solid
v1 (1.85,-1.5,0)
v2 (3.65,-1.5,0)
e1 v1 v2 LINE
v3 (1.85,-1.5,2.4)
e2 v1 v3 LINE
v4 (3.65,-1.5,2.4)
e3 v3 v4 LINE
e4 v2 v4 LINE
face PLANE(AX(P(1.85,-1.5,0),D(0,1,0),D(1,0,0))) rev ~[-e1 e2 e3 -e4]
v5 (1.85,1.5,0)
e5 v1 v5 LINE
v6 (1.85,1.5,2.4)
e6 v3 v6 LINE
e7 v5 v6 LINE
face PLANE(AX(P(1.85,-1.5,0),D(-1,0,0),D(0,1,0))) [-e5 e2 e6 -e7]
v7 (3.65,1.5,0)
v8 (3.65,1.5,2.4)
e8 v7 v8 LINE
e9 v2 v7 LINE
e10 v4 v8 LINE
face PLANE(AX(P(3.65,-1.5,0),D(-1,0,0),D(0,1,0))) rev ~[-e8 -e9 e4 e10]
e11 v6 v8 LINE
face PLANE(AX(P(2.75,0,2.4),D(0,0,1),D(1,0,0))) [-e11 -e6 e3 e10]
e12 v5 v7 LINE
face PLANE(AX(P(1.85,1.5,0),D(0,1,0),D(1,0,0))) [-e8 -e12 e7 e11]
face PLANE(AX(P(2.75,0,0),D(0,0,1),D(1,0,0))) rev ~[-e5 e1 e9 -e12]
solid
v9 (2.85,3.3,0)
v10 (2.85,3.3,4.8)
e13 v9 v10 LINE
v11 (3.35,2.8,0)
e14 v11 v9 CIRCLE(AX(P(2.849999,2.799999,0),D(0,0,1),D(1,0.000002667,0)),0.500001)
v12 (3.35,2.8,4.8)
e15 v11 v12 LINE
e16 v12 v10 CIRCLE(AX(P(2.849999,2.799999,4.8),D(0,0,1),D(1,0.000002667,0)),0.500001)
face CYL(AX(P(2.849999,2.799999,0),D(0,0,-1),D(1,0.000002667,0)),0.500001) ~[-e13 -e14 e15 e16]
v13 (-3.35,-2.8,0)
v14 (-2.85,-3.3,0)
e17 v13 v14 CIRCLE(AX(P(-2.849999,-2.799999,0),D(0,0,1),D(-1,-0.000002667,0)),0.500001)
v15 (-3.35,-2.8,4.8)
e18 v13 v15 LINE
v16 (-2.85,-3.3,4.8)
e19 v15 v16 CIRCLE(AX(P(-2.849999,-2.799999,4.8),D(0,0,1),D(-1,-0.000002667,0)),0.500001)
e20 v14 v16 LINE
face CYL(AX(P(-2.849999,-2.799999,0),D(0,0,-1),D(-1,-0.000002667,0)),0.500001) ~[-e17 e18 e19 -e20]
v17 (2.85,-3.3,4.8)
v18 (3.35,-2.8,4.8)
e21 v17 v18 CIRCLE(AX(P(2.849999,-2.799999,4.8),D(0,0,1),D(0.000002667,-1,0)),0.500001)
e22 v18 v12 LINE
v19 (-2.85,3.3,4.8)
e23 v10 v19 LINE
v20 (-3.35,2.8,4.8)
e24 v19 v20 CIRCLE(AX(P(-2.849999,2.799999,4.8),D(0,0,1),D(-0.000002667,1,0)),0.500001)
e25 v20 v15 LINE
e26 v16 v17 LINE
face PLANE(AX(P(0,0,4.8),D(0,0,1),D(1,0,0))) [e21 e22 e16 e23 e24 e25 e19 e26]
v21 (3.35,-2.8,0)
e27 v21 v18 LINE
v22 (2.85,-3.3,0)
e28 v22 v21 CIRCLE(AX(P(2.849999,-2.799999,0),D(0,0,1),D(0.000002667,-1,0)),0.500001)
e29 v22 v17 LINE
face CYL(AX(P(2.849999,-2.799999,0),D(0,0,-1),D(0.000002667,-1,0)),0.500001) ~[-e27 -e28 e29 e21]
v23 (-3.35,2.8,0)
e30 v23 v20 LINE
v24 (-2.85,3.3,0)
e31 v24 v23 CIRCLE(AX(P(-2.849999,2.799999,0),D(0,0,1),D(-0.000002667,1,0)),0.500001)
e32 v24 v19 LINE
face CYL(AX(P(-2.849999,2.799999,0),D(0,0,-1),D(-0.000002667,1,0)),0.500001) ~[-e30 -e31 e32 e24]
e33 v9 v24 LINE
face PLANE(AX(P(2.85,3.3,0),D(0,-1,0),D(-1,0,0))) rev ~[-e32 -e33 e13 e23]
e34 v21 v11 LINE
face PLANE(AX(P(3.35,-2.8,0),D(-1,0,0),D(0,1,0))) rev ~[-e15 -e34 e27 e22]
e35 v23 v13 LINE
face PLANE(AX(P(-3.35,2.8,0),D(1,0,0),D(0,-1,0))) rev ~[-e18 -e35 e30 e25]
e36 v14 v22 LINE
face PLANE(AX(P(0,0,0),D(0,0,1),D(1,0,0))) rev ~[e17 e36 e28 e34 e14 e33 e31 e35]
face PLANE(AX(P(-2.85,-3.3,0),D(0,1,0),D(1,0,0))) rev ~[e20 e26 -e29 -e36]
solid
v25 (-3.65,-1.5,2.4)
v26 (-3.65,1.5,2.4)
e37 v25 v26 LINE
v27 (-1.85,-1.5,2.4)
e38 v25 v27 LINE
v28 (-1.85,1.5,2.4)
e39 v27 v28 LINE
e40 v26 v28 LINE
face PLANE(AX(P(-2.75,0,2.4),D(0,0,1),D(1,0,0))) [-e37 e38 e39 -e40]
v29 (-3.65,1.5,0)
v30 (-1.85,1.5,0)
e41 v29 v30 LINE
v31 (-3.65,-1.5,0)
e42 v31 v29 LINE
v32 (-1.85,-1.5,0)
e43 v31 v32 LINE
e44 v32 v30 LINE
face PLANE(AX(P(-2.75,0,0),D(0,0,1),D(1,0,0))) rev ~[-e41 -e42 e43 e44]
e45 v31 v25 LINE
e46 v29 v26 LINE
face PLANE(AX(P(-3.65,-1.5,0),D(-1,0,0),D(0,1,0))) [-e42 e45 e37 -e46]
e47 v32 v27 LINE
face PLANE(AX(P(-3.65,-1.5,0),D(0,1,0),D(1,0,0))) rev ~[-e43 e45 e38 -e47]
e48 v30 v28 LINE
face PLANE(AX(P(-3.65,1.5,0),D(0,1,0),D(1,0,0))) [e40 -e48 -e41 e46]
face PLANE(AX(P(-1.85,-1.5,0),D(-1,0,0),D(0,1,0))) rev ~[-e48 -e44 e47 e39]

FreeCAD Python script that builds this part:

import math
import FreeCAD as App
import Part
import Sketcher

V = App.Vector


def add_polygon(sketch, points):
    """Adds a closed chain of lines whose ends are joined by coincident constraints."""
    first, n = sketch.GeometryCount, len(points)
    for a, b in zip(points, points[1:] + points[:1]):
        sketch.addGeometry(Part.LineSegment(App.Vector(*a, 0), App.Vector(*b, 0)), False)
    for i in range(n):
        sketch.addConstraint(Sketcher.Constraint("Coincident", first + i, 2, first + (i + 1) % n, 1))

doc = App.newDocument("Part")
params = doc.addObject("Spreadsheet::Sheet", "Params")
for row, (alias, value) in enumerate([
    ("sketch1_height", "3 mm"),
    ("sketch1_width", "1.8 mm"),
    ("pad1_length", "2.4 mm"),
    ("sketch2_radius", "0.500001 mm"),
    ("sketch2_width", "5.7 mm"),
    ("sketch2_height", "5.6 mm"),
    ("pad2_length", "4.8 mm"),
], start=1):
    params.set(f"A{row}", alias)
    params.set(f"B{row}", "=" + value)
    params.setAlias(f"B{row}", alias)

body = doc.addObject("PartDesign::Body", "Body")
body.AllowCompound = True

sketch1 = body.newObject("Sketcher::SketchObject", "Sketch")
sketch1.AttachmentSupport = (doc.getObject("XY_Plane"), [""])
sketch1.MapMode = "FlatFace"
add_polygon(sketch1, [(-3.65, 1.5), (-3.65, -1.5), (-1.85, -1.5), (-1.85, 1.5)])
add_polygon(sketch1, [(1.85, 1.5), (1.85, -1.5), (3.65, -1.5), (3.65, 1.5)])
sketch1.addConstraint(Sketcher.Constraint("Vertical", 0))
sketch1.addConstraint(Sketcher.Constraint("Horizontal", 1))
sketch1.addConstraint(Sketcher.Constraint("Vertical", 2))
sketch1.addConstraint(Sketcher.Constraint("Horizontal", 3))
sketch1.addConstraint(Sketcher.Constraint("Vertical", 4))
sketch1.addConstraint(Sketcher.Constraint("Horizontal", 5))
sketch1.addConstraint(Sketcher.Constraint("Vertical", 6))
sketch1.addConstraint(Sketcher.Constraint("Horizontal", 7))
sketch1.addConstraint(Sketcher.Constraint("Symmetric", 2, 2, 4, 2, -1, 1))
sketch1.addConstraint(Sketcher.Constraint("Symmetric", 0, 2, 6, 2, -1, 1))
sketch1.addConstraint(Sketcher.Constraint("Horizontal", 1, 2, 4, 2))
sketch1.addConstraint(Sketcher.Constraint("DistanceY", 0, 2, 0, 1, 3.0))
sketch1.addConstraint(Sketcher.Constraint("DistanceX", 1, 1, 1, 2, 1.8))
sketch1.addConstraint(Sketcher.Constraint("DistanceX", 1, 2, 4, 2, 3.7))
sketch1.setExpression("Constraints[19]", "Params.sketch1_height")
sketch1.setExpression("Constraints[20]", "Params.sketch1_width")
pad1 = body.newObject("PartDesign::Pad", "Pad")
pad1.Profile = sketch1
pad1.setExpression("Length", "Params.pad1_length")
body2 = doc.addObject("PartDesign::Body", "Body001")

sketch2 = body2.newObject("Sketcher::SketchObject", "Sketch001")
sketch2.AttachmentSupport = (doc.getObject("XY_Plane001"), [""])
sketch2.MapMode = "FlatFace"
sketch2.addGeometry(Part.LineSegment(V(2.85, 3.3, 0), V(-2.85, 3.3, 0)), False)
sketch2.addGeometry(Part.ArcOfCircle(Part.Circle(V(-2.849999, 2.799999, 0), V(0, 0, 1), 0.500001), math.radians(90.000153), math.radians(179.999847)), False)
sketch2.addGeometry(Part.LineSegment(V(-3.35, 2.8, 0), V(-3.35, -2.8, 0)), False)
sketch2.addGeometry(Part.ArcOfCircle(Part.Circle(V(-2.849999, -2.799999, 0), V(0, 0, 1), 0.500001), math.radians(-179.999847), math.radians(-90.000153)), False)
sketch2.addGeometry(Part.LineSegment(V(-2.85, -3.3, 0), V(2.85, -3.3, 0)), False)
sketch2.addGeometry(Part.ArcOfCircle(Part.Circle(V(2.849999, -2.799999, 0), V(0, 0, 1), 0.500001), math.radians(-89.999847), math.radians(-0.000153)), False)
sketch2.addGeometry(Part.LineSegment(V(3.35, -2.8, 0), V(3.35, 2.8, 0)), False)
sketch2.addGeometry(Part.ArcOfCircle(Part.Circle(V(2.849999, 2.799999, 0), V(0, 0, 1), 0.500001), math.radians(0.000153), math.radians(89.999847)), False)
sketch2.addConstraint(Sketcher.Constraint("Coincident", 0, 2, 1, 1))
sketch2.addConstraint(Sketcher.Constraint("Coincident", 1, 2, 2, 1))
sketch2.addConstraint(Sketcher.Constraint("Coincident", 2, 2, 3, 1))
sketch2.addConstraint(Sketcher.Constraint("Coincident", 3, 2, 4, 1))
sketch2.addConstraint(Sketcher.Constraint("Coincident", 4, 2, 5, 1))
sketch2.addConstraint(Sketcher.Constraint("Coincident", 5, 2, 6, 1))
sketch2.addConstraint(Sketcher.Constraint("Coincident", 6, 2, 7, 1))
sketch2.addConstraint(Sketcher.Constraint("Coincident", 7, 2, 0, 1))
sketch2.addConstraint(Sketcher.Constraint("Horizontal", 0))
sketch2.addConstraint(Sketcher.Constraint("Vertical", 2))
sketch2.addConstraint(Sketcher.Constraint("Horizontal", 4))
sketch2.addConstraint(Sketcher.Constraint("Vertical", 6))
sketch2.addConstraint(Sketcher.Constraint("Equal", 1, 3))
sketch2.addConstraint(Sketcher.Constraint("Equal", 3, 5))
sketch2.addConstraint(Sketcher.Constraint("Equal", 5, 7))
sketch2.addConstraint(Sketcher.Constraint("Symmetric", 1, 3, 5, 3, -1, 1))
sketch2.addConstraint(Sketcher.Constraint("Horizontal", 7, 3, 1, 2))
sketch2.addConstraint(Sketcher.Constraint("Horizontal", 5, 3, 2, 2))
sketch2.addConstraint(Sketcher.Constraint("Horizontal", 2, 2, 5, 2))
sketch2.addConstraint(Sketcher.Constraint("Horizontal", 1, 2, 6, 2))
sketch2.addConstraint(Sketcher.Constraint("Vertical", 3, 3, 0, 2))
sketch2.addConstraint(Sketcher.Constraint("Vertical", 0, 2, 3, 2))
sketch2.addConstraint(Sketcher.Constraint("Vertical", 7, 3, 4, 2))
sketch2.addConstraint(Sketcher.Constraint("Vertical", 4, 2, 7, 2))
sketch2.addConstraint(Sketcher.Constraint("Radius", 1, 0.500001))
sketch2.addConstraint(Sketcher.Constraint("DistanceX", 0, 2, 0, 1, 5.7))
sketch2.addConstraint(Sketcher.Constraint("DistanceY", 2, 2, 2, 1, 5.6))
sketch2.setExpression("Constraints[24]", "Params.sketch2_radius")
sketch2.setExpression("Constraints[25]", "Params.sketch2_width")
sketch2.setExpression("Constraints[26]", "Params.sketch2_height")
pad2 = body2.newObject("PartDesign::Pad", "Pad001")
pad2.Profile = sketch2
pad2.setExpression("Length", "Params.pad2_length")

doc.recompute()
